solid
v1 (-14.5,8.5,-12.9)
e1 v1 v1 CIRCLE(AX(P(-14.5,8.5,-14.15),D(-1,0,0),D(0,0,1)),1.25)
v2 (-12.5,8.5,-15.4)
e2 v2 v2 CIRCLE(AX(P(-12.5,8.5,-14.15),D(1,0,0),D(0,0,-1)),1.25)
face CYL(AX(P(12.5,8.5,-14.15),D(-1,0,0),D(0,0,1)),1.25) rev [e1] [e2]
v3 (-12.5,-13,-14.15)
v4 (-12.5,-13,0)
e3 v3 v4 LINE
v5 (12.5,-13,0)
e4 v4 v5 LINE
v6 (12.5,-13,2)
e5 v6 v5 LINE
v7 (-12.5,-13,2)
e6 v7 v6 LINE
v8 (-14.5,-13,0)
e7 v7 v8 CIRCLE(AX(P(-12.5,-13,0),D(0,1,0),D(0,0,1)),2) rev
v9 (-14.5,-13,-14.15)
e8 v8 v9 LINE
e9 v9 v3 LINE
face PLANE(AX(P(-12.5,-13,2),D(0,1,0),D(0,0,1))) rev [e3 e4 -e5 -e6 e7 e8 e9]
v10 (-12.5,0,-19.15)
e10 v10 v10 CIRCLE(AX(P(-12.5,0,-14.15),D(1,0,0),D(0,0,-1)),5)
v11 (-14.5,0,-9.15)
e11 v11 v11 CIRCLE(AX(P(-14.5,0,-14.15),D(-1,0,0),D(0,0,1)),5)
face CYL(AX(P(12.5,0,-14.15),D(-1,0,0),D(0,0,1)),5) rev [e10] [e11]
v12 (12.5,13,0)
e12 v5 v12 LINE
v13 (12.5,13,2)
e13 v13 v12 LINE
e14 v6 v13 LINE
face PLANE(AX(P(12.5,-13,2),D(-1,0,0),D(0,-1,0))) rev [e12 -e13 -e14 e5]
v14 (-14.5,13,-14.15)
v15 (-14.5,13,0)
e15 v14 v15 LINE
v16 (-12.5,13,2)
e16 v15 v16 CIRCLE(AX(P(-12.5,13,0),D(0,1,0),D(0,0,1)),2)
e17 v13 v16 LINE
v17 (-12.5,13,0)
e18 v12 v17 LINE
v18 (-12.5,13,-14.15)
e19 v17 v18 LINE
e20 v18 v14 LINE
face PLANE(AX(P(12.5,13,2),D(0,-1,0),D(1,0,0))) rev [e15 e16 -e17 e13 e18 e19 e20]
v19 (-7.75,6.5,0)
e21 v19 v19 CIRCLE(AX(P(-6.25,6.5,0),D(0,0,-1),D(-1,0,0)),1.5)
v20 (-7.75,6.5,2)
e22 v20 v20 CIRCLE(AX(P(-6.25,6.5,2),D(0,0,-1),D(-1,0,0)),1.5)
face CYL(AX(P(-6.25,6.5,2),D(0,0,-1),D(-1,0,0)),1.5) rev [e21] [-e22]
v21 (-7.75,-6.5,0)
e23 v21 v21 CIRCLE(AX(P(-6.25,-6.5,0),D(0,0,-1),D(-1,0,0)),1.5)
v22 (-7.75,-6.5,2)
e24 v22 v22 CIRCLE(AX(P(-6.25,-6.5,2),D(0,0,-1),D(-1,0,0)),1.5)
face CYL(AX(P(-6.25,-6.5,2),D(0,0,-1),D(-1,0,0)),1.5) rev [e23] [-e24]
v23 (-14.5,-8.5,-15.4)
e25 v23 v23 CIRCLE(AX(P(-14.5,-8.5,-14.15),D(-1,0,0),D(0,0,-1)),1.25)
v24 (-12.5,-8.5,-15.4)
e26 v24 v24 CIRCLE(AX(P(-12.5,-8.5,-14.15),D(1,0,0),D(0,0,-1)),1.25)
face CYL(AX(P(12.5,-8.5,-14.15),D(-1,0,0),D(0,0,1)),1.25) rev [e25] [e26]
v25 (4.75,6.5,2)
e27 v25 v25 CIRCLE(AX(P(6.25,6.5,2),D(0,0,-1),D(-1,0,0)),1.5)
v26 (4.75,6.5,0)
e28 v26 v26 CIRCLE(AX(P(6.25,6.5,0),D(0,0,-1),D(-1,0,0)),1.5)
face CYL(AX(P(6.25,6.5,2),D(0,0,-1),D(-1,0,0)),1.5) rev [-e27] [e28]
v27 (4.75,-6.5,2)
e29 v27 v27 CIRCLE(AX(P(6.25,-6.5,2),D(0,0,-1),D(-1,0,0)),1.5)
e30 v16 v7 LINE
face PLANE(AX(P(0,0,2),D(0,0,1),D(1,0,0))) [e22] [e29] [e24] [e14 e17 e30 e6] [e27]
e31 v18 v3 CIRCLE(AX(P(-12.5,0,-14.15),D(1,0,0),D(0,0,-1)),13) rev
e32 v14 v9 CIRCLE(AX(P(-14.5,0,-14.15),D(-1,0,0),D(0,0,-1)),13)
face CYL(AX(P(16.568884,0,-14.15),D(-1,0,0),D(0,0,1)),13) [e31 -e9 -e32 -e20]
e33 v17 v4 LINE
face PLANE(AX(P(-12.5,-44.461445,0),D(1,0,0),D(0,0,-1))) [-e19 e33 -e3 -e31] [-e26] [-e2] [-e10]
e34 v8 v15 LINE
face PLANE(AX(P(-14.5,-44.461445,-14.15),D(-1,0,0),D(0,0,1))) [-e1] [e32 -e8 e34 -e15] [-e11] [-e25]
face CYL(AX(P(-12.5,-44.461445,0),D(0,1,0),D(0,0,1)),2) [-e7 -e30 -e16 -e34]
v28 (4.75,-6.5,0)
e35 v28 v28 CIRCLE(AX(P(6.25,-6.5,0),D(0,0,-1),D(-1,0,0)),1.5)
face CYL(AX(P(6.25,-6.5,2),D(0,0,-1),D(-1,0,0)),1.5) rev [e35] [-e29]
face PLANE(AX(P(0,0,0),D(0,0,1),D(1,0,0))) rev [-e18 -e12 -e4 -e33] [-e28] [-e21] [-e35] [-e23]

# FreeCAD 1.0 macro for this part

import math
import FreeCAD as App
import Part
import Sketcher
Q = App.Units.Quantity


def add_polygon(sketch, points):
    """Adds a closed chain of lines whose ends are joined by coincident constraints."""
    first, n = sketch.GeometryCount, len(points)
    for a, b in zip(points, points[1:] + points[:1]):
        sketch.addGeometry(Part.LineSegment(App.Vector(*a, 0), App.Vector(*b, 0)), False)
    for i in range(n):
        sketch.addConstraint(Sketcher.Constraint("Coincident", first + i, 2, first + (i + 1) % n, 1))

doc = App.newDocument("Part")
params = doc.addObject("Spreadsheet::Sheet", "Params")
for row, (alias, value) in enumerate([
    ("sketch1_diameter", "3 mm"),
    ("sketch1_width", "25 mm"),
    ("sketch1_height", "26 mm"),
    ("pad1_length", "2 mm"),
    ("sketch2_radius", "2 mm"),
    ("sketch2_width", "25 mm"),
    ("sketch2_height", "14.15 mm"),
    ("pad2_length", "26 mm"),
    ("sketch3_radius", "13 mm"),
    ("pad3_length", "2 mm"),
    ("sketch4_diameter", "3 mm"),
    ("sketch5_diameter", "10 mm"),
    ("sketch6_diameter", "2.5 mm"),
], start=1):
    params.set(f"A{row}", alias)
    params.set(f"B{row}", "=" + value)
    params.setAlias(f"B{row}", alias)

body = doc.addObject("PartDesign::Body", "Body")

sketch1 = body.newObject("Sketcher::SketchObject", "Sketch")
sketch1.AttachmentSupport = (doc.getObject("XY_Plane"), [""])
sketch1.MapMode = "FlatFace"
add_polygon(sketch1, [(-12.5, 13), (-12.5, -13), (12.5, -13), (12.5, 13)])
sketch1.addGeometry(Part.Circle(App.Vector(-6.2, -6.5, 0), App.Vector(0, 0, 1), 1.5), False)
sketch1.addGeometry(Part.Circle(App.Vector(6.2, -6.5, 0), App.Vector(0, 0, 1), 1.5), False)
sketch1.addGeometry(Part.Circle(App.Vector(-6.2, 6.5, 0), App.Vector(0, 0, 1), 1.5), False)
sketch1.addGeometry(Part.Circle(App.Vector(6.2, 6.5, 0), App.Vector(0, 0, 1), 1.5), False)
sketch1.addConstraint(Sketcher.Constraint("Vertical", 0))
sketch1.addConstraint(Sketcher.Constraint("Horizontal", 1))
sketch1.addConstraint(Sketcher.Constraint("Vertical", 2))
sketch1.addConstraint(Sketcher.Constraint("Horizontal", 3))
sketch1.addConstraint(Sketcher.Constraint("Equal", 4, 5))
sketch1.addConstraint(Sketcher.Constraint("Equal", 5, 6))
sketch1.addConstraint(Sketcher.Constraint("Equal", 6, 7))
sketch1.addConstraint(Sketcher.Constraint("Symmetric", 5, 3, 6, 3, -1, 1))
sketch1.addConstraint(Sketcher.Constraint("Symmetric", 4, 3, 7, 3, -1, 1))
sketch1.addConstraint(Sketcher.Constraint("Symmetric", 0, 2, 2, 2, -1, 1))
sketch1.addConstraint(Sketcher.Constraint("Symmetric", 4, 3, 5, 3, -2))
sketch1.addConstraint(Sketcher.Constraint("Diameter", 4, Q("3 mm")))
sketch1.addConstraint(Sketcher.Constraint("DistanceX", 1, 1, 1, 2, Q("25 mm")))
sketch1.addConstraint(Sketcher.Constraint("DistanceY", 0, 2, 0, 1, Q("26 mm")))
sketch1.addConstraint(Sketcher.Constraint("DistanceY", 4, 3, 6, 3, Q("13 mm")))
sketch1.addConstraint(Sketcher.Constraint("DistanceX", 4, 3, 5, 3, Q("12.5 mm")))
sketch1.setExpression("Constraints[15]", "Params.sketch1_diameter")
sketch1.setExpression("Constraints[16]", "Params.sketch1_width")
sketch1.setExpression("Constraints[17]", "Params.sketch1_height")
pad1 = body.newObject("PartDesign::Pad", "Pad")
pad1.Profile = sketch1
pad1.setExpression("Length", "Params.pad1_length")

sketch2 = body.newObject("Sketcher::SketchObject", "Sketch001")
sketch2.AttachmentSupport = (doc.getObject("XZ_Plane"), [""])
sketch2.MapMode = "FlatFace"
sketch2.AttachmentOffset = App.Placement(App.Vector(0, 0, -13), App.Rotation())
sketch2.addGeometry(Part.LineSegment(App.Vector(-12.5, 2, 0), App.Vector(12.5, 2, 0)), False)
sketch2.addGeometry(Part.LineSegment(App.Vector(12.5, 2, 0), App.Vector(12.5, 0, 0)), False)
sketch2.addGeometry(Part.LineSegment(App.Vector(12.5, 0, 0), App.Vector(-12.5, 0, 0)), False)
sketch2.addGeometry(Part.LineSegment(App.Vector(-12.5, 0, 0), App.Vector(-12.5, -14.2, 0)), False)
sketch2.addGeometry(Part.LineSegment(App.Vector(-12.5, -14.2, 0), App.Vector(-14.5, -14.2, 0)), False)
sketch2.addGeometry(Part.LineSegment(App.Vector(-14.5, -14.2, 0), App.Vector(-14.5, 0, 0)), False)
sketch2.addGeometry(Part.ArcOfCircle(Part.Circle(App.Vector(-12.5, 0, 0), App.Vector(0, 0, 1), 2), math.radians(90), math.radians(180)), False)
sketch2.addConstraint(Sketcher.Constraint("Coincident", 0, 2, 1, 1))
sketch2.addConstraint(Sketcher.Constraint("Coincident", 1, 2, 2, 1))
sketch2.addConstraint(Sketcher.Constraint("Coincident", 2, 2, 3, 1))
sketch2.addConstraint(Sketcher.Constraint("Coincident", 3, 2, 4, 1))
sketch2.addConstraint(Sketcher.Constraint("Coincident", 4, 2, 5, 1))
sketch2.addConstraint(Sketcher.Constraint("Tangent", 5, 2, 6, 2))
sketch2.addConstraint(Sketcher.Constraint("Tangent", 6, 1, 0, 1))
sketch2.addConstraint(Sketcher.Constraint("Horizontal", 0))
sketch2.addConstraint(Sketcher.Constraint("Vertical", 1))
sketch2.addConstraint(Sketcher.Constraint("Horizontal", 2))
sketch2.addConstraint(Sketcher.Constraint("Vertical", 3))
sketch2.addConstraint(Sketcher.Constraint("Horizontal", 4))
sketch2.addConstraint(Sketcher.Constraint("Vertical", 5))
sketch2.addConstraint(Sketcher.Constraint("Coincident", 2, 2, 6, 3))
sketch2.addConstraint(Sketcher.Constraint("Symmetric", 1, 2, 2, 2, -1, 1))
sketch2.addConstraint(Sketcher.Constraint("Radius", 6, Q("2 mm")))
sketch2.addConstraint(Sketcher.Constraint("DistanceX", 0, 1, 0, 2, Q("25 mm")))
sketch2.addConstraint(Sketcher.Constraint("DistanceY", 3, 2, 3, 1, Q("14.15 mm")))
sketch2.setExpression("Constraints[15]", "Params.sketch2_radius")
sketch2.setExpression("Constraints[16]", "Params.sketch2_width")
sketch2.setExpression("Constraints[17]", "Params.sketch2_height")
pad2 = body.newObject("PartDesign::Pad", "Pad001")
pad2.Profile = sketch2
pad2.setExpression("Length", "Params.pad2_length")

sketch3 = body.newObject("Sketcher::SketchObject", "Sketch002")
sketch3.AttachmentSupport = (doc.getObject("YZ_Plane"), [""])
sketch3.MapMode = "FlatFace"
sketch3.AttachmentOffset = App.Placement(App.Vector(0, 0, -14.5), App.Rotation())
sketch3.addGeometry(Part.LineSegment(App.Vector(-13, -14, 0), App.Vector(13, -14, 0)), False)
sketch3.addGeometry(Part.ArcOfCircle(Part.Circle(App.Vector(0, -14, 0), App.Vector(0, 0, 1), 13), math.radians(180), math.radians(360)), False)
sketch3.addConstraint(Sketcher.Constraint("Coincident", 0, 1, 1, 1))
sketch3.addConstraint(Sketcher.Constraint("Coincident", 1, 2, 0, 2))
sketch3.addConstraint(Sketcher.Constraint("Horizontal", 0))
sketch3.addConstraint(Sketcher.Constraint("PointOnObject", 1, 3, -2))
sketch3.addConstraint(Sketcher.Constraint("Horizontal", 1, 3, 0, 1))
sketch3.addConstraint(Sketcher.Constraint("Radius", 1, Q("13 mm")))
sketch3.addConstraint(Sketcher.Constraint("DistanceY", 1, 3, -1, 1, Q("14.15 mm")))
sketch3.setExpression("Constraints[5]", "Params.sketch3_radius")
pad3 = body.newObject("PartDesign::Pad", "Pad002")
pad3.Profile = sketch3
pad3.setExpression("Length", "Params.pad3_length")

sketch4 = body.newObject("Sketcher::SketchObject", "Sketch003")
sketch4.AttachmentSupport = (doc.getObject("XY_Plane"), [""])
sketch4.MapMode = "FlatFace"
sketch4.addGeometry(Part.Circle(App.Vector(6.2, -6.5, 0), App.Vector(0, 0, 1), 1.5), False)
sketch4.addGeometry(Part.Circle(App.Vector(-6.2, -6.5, 0), App.Vector(0, 0, 1), 1.5), False)
sketch4.addGeometry(Part.Circle(App.Vector(-6.2, 6.5, 0), App.Vector(0, 0, 1), 1.5), False)
sketch4.addGeometry(Part.Circle(App.Vector(6.2, 6.5, 0), App.Vector(0, 0, 1), 1.5), False)
sketch4.addConstraint(Sketcher.Constraint("Equal", 0, 1))
sketch4.addConstraint(Sketcher.Constraint("Equal", 1, 2))
sketch4.addConstraint(Sketcher.Constraint("Equal", 2, 3))
sketch4.addConstraint(Sketcher.Constraint("Symmetric", 0, 3, 2, 3, -1, 1))
sketch4.addConstraint(Sketcher.Constraint("Symmetric", 1, 3, 3, 3, -1, 1))
sketch4.addConstraint(Sketcher.Constraint("Symmetric", 0, 3, 1, 3, -2))
sketch4.addConstraint(Sketcher.Constraint("Diameter", 0, Q("3 mm")))
sketch4.addConstraint(Sketcher.Constraint("DistanceY", 1, 3, 2, 3, Q("13 mm")))
sketch4.addConstraint(Sketcher.Constraint("DistanceX", 1, 3, 0, 3, Q("12.5 mm")))
sketch4.setExpression("Constraints[6]", "Params.sketch4_diameter")
pocket1 = body.newObject("PartDesign::Pocket", "Pocket")
pocket1.Profile = sketch4
pocket1.Type = "ThroughAll"
pocket1.Reversed = True

sketch5 = body.newObject("Sketcher::SketchObject", "Sketch004")
sketch5.AttachmentSupport = (doc.getObject("YZ_Plane"), [""])
sketch5.MapMode = "FlatFace"
sketch5.AttachmentOffset = App.Placement(App.Vector(0, 0, -14.5), App.Rotation())
sketch5.addGeometry(Part.Circle(App.Vector(0, -14, 0), App.Vector(0, 0, 1), 5), False)
sketch5.addConstraint(Sketcher.Constraint("PointOnObject", 0, 3, -2))
sketch5.addConstraint(Sketcher.Constraint("Diameter", 0, Q("10 mm")))
sketch5.addConstraint(Sketcher.Constraint("DistanceY", 0, 3, -1, 1, Q("14.15 mm")))
sketch5.setExpression("Constraints[1]", "Params.sketch5_diameter")
pocket2 = body.newObject("PartDesign::Pocket", "Pocket001")
pocket2.Profile = sketch5
pocket2.Type = "ThroughAll"
pocket2.Reversed = True

sketch6 = body.newObject("Sketcher::SketchObject", "Sketch005")
sketch6.AttachmentSupport = (doc.getObject("YZ_Plane"), [""])
sketch6.MapMode = "FlatFace"
sketch6.AttachmentOffset = App.Placement(App.Vector(0, 0, -14.5), App.Rotation())
sketch6.addGeometry(Part.Circle(App.Vector(8.5, -14.2, 0), App.Vector(0, 0, 1), 1.2), False)
sketch6.addGeometry(Part.Circle(App.Vector(-8.5, -14.2, 0), App.Vector(0, 0, 1), 1.2), False)
sketch6.addConstraint(Sketcher.Constraint("Equal", 0, 1))
sketch6.addConstraint(Sketcher.Constraint("Symmetric", 0, 3, 1, 3, -2))
sketch6.addConstraint(Sketcher.Constraint("Diameter", 0, Q("2.5 mm")))
sketch6.addConstraint(Sketcher.Constraint("DistanceX", 1, 3, 0, 3, Q("17 mm")))
sketch6.addConstraint(Sketcher.Constraint("DistanceY", 0, 3, -1, 1, Q("14.15 mm")))
sketch6.setExpression("Constraints[2]", "Params.sketch6_diameter")
pocket3 = body.newObject("PartDesign::Pocket", "Pocket002")
pocket3.Profile = sketch6
pocket3.Type = "ThroughAll"
pocket3.Reversed = True

doc.recompute()
